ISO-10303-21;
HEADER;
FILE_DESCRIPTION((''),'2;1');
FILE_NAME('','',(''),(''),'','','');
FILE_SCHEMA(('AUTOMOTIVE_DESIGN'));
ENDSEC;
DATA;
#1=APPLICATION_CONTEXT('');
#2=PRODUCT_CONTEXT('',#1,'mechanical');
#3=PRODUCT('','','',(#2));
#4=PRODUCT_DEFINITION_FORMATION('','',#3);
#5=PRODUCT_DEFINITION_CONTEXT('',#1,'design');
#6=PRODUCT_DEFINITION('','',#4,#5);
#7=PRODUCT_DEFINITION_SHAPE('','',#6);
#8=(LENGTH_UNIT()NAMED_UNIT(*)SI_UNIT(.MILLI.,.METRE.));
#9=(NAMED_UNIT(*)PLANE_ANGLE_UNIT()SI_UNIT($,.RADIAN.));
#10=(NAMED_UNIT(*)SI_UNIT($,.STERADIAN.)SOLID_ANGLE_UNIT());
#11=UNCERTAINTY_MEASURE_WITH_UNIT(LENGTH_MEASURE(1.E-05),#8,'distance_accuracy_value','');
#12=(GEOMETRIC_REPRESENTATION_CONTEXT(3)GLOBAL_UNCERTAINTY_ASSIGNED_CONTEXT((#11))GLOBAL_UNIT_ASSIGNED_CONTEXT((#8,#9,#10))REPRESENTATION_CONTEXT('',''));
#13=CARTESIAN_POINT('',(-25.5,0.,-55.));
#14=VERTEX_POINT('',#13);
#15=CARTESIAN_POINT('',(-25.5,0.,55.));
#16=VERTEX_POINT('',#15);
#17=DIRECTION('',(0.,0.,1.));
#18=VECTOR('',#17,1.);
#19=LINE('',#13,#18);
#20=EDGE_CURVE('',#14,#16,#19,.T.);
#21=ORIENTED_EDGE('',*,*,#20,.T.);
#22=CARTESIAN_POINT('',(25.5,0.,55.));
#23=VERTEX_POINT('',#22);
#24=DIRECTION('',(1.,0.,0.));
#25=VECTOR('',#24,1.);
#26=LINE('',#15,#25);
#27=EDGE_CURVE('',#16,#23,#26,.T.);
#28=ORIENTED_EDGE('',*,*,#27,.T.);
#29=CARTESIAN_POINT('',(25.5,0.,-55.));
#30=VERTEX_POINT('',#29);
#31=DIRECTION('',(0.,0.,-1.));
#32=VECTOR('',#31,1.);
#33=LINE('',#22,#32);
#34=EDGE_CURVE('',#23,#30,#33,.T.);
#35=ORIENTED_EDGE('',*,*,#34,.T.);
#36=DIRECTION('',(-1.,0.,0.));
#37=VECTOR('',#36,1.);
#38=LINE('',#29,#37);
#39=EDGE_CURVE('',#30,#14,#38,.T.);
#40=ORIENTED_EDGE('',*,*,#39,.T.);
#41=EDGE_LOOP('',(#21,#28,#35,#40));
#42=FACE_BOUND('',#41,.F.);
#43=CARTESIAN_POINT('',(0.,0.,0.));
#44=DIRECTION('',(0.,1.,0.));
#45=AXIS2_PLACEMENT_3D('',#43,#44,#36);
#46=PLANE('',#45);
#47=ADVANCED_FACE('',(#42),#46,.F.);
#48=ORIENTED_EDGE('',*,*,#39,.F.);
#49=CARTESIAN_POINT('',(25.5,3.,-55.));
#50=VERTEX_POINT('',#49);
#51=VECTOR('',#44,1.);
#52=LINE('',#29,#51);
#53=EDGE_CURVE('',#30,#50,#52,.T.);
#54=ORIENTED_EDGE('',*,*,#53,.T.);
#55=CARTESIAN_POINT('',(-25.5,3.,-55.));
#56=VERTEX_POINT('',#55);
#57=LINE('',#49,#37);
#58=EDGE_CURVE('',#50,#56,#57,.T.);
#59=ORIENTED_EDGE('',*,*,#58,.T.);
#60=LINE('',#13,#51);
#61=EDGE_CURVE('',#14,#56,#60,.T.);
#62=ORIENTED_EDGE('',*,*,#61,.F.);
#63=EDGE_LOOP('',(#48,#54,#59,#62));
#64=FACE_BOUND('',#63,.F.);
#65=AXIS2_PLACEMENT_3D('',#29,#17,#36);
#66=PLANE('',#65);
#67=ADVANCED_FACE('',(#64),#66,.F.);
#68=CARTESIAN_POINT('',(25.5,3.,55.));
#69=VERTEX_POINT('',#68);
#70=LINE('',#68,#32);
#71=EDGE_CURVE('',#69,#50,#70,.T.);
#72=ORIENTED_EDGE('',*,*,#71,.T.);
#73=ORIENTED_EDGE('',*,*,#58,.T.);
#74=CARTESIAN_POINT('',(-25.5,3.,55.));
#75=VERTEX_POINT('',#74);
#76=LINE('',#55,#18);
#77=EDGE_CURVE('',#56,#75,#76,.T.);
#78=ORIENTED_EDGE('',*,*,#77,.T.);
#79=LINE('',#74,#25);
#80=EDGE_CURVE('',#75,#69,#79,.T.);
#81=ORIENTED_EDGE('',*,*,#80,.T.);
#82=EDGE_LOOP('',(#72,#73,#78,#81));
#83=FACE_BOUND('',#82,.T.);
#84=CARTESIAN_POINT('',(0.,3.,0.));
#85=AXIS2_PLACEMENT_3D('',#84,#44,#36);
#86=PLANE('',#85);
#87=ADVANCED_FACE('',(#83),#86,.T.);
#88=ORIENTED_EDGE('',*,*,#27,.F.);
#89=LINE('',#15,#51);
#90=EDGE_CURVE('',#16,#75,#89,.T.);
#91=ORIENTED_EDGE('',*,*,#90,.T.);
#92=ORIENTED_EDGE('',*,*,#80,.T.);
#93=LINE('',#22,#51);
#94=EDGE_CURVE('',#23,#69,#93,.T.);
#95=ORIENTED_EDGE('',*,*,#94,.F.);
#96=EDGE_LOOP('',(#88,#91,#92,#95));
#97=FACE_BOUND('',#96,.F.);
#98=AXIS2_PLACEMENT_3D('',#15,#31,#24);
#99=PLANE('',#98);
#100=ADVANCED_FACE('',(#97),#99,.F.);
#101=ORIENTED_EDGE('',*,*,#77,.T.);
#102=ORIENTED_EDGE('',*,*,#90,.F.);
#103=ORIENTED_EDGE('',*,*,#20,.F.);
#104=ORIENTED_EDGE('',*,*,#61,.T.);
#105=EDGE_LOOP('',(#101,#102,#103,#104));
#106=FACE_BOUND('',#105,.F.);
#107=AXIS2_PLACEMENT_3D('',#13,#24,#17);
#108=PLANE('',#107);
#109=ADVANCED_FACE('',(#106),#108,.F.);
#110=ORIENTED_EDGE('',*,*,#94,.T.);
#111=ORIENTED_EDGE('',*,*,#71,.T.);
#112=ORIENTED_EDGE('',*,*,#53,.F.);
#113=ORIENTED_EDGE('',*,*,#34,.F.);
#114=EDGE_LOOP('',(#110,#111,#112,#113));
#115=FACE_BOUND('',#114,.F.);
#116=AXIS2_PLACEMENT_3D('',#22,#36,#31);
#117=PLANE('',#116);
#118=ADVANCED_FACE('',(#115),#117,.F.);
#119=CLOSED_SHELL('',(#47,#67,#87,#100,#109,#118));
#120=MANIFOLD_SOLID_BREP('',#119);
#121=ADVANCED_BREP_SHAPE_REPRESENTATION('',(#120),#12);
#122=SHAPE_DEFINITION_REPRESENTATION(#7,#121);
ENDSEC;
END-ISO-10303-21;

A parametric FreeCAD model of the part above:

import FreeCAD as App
import Part
import Sketcher

V = App.Vector


def add_polygon(sketch, points):
    """Adds a closed chain of lines whose ends are joined by coincident constraints."""
    first, n = sketch.GeometryCount, len(points)
    for a, b in zip(points, points[1:] + points[:1]):
        sketch.addGeometry(Part.LineSegment(App.Vector(*a, 0), App.Vector(*b, 0)), False)
    for i in range(n):
        sketch.addConstraint(Sketcher.Constraint("Coincident", first + i, 2, first + (i + 1) % n, 1))

doc = App.newDocument("Part")
body = doc.addObject("PartDesign::Body", "Body")

sketch1 = body.newObject("Sketcher::SketchObject", "Sketch")
sketch1.AttachmentSupport = (doc.getObject("XZ_Plane"), [""])
sketch1.MapMode = "FlatFace"
add_polygon(sketch1, [(-26, -55), (-26, 55), (26, 55), (26, -55)])
sketch1.addConstraint([
    Sketcher.Constraint("Vertical", 0),
    Sketcher.Constraint("Horizontal", 1),
    Sketcher.Constraint("Vertical", 2),
    Sketcher.Constraint("Horizontal", 3),
    Sketcher.Constraint("Symmetric", 0, 2, 2, 2, -1, 1),
    Sketcher.Constraint("DistanceX", 1, 1, 1, 2, 51.0),
    Sketcher.Constraint("DistanceY", 0, 1, 0, 2, 110.0),
])
pad1 = body.newObject("PartDesign::Pad", "Pad")
pad1.Profile = sketch1
pad1.Length = 3
pad1.Reversed = True

doc.recompute()
